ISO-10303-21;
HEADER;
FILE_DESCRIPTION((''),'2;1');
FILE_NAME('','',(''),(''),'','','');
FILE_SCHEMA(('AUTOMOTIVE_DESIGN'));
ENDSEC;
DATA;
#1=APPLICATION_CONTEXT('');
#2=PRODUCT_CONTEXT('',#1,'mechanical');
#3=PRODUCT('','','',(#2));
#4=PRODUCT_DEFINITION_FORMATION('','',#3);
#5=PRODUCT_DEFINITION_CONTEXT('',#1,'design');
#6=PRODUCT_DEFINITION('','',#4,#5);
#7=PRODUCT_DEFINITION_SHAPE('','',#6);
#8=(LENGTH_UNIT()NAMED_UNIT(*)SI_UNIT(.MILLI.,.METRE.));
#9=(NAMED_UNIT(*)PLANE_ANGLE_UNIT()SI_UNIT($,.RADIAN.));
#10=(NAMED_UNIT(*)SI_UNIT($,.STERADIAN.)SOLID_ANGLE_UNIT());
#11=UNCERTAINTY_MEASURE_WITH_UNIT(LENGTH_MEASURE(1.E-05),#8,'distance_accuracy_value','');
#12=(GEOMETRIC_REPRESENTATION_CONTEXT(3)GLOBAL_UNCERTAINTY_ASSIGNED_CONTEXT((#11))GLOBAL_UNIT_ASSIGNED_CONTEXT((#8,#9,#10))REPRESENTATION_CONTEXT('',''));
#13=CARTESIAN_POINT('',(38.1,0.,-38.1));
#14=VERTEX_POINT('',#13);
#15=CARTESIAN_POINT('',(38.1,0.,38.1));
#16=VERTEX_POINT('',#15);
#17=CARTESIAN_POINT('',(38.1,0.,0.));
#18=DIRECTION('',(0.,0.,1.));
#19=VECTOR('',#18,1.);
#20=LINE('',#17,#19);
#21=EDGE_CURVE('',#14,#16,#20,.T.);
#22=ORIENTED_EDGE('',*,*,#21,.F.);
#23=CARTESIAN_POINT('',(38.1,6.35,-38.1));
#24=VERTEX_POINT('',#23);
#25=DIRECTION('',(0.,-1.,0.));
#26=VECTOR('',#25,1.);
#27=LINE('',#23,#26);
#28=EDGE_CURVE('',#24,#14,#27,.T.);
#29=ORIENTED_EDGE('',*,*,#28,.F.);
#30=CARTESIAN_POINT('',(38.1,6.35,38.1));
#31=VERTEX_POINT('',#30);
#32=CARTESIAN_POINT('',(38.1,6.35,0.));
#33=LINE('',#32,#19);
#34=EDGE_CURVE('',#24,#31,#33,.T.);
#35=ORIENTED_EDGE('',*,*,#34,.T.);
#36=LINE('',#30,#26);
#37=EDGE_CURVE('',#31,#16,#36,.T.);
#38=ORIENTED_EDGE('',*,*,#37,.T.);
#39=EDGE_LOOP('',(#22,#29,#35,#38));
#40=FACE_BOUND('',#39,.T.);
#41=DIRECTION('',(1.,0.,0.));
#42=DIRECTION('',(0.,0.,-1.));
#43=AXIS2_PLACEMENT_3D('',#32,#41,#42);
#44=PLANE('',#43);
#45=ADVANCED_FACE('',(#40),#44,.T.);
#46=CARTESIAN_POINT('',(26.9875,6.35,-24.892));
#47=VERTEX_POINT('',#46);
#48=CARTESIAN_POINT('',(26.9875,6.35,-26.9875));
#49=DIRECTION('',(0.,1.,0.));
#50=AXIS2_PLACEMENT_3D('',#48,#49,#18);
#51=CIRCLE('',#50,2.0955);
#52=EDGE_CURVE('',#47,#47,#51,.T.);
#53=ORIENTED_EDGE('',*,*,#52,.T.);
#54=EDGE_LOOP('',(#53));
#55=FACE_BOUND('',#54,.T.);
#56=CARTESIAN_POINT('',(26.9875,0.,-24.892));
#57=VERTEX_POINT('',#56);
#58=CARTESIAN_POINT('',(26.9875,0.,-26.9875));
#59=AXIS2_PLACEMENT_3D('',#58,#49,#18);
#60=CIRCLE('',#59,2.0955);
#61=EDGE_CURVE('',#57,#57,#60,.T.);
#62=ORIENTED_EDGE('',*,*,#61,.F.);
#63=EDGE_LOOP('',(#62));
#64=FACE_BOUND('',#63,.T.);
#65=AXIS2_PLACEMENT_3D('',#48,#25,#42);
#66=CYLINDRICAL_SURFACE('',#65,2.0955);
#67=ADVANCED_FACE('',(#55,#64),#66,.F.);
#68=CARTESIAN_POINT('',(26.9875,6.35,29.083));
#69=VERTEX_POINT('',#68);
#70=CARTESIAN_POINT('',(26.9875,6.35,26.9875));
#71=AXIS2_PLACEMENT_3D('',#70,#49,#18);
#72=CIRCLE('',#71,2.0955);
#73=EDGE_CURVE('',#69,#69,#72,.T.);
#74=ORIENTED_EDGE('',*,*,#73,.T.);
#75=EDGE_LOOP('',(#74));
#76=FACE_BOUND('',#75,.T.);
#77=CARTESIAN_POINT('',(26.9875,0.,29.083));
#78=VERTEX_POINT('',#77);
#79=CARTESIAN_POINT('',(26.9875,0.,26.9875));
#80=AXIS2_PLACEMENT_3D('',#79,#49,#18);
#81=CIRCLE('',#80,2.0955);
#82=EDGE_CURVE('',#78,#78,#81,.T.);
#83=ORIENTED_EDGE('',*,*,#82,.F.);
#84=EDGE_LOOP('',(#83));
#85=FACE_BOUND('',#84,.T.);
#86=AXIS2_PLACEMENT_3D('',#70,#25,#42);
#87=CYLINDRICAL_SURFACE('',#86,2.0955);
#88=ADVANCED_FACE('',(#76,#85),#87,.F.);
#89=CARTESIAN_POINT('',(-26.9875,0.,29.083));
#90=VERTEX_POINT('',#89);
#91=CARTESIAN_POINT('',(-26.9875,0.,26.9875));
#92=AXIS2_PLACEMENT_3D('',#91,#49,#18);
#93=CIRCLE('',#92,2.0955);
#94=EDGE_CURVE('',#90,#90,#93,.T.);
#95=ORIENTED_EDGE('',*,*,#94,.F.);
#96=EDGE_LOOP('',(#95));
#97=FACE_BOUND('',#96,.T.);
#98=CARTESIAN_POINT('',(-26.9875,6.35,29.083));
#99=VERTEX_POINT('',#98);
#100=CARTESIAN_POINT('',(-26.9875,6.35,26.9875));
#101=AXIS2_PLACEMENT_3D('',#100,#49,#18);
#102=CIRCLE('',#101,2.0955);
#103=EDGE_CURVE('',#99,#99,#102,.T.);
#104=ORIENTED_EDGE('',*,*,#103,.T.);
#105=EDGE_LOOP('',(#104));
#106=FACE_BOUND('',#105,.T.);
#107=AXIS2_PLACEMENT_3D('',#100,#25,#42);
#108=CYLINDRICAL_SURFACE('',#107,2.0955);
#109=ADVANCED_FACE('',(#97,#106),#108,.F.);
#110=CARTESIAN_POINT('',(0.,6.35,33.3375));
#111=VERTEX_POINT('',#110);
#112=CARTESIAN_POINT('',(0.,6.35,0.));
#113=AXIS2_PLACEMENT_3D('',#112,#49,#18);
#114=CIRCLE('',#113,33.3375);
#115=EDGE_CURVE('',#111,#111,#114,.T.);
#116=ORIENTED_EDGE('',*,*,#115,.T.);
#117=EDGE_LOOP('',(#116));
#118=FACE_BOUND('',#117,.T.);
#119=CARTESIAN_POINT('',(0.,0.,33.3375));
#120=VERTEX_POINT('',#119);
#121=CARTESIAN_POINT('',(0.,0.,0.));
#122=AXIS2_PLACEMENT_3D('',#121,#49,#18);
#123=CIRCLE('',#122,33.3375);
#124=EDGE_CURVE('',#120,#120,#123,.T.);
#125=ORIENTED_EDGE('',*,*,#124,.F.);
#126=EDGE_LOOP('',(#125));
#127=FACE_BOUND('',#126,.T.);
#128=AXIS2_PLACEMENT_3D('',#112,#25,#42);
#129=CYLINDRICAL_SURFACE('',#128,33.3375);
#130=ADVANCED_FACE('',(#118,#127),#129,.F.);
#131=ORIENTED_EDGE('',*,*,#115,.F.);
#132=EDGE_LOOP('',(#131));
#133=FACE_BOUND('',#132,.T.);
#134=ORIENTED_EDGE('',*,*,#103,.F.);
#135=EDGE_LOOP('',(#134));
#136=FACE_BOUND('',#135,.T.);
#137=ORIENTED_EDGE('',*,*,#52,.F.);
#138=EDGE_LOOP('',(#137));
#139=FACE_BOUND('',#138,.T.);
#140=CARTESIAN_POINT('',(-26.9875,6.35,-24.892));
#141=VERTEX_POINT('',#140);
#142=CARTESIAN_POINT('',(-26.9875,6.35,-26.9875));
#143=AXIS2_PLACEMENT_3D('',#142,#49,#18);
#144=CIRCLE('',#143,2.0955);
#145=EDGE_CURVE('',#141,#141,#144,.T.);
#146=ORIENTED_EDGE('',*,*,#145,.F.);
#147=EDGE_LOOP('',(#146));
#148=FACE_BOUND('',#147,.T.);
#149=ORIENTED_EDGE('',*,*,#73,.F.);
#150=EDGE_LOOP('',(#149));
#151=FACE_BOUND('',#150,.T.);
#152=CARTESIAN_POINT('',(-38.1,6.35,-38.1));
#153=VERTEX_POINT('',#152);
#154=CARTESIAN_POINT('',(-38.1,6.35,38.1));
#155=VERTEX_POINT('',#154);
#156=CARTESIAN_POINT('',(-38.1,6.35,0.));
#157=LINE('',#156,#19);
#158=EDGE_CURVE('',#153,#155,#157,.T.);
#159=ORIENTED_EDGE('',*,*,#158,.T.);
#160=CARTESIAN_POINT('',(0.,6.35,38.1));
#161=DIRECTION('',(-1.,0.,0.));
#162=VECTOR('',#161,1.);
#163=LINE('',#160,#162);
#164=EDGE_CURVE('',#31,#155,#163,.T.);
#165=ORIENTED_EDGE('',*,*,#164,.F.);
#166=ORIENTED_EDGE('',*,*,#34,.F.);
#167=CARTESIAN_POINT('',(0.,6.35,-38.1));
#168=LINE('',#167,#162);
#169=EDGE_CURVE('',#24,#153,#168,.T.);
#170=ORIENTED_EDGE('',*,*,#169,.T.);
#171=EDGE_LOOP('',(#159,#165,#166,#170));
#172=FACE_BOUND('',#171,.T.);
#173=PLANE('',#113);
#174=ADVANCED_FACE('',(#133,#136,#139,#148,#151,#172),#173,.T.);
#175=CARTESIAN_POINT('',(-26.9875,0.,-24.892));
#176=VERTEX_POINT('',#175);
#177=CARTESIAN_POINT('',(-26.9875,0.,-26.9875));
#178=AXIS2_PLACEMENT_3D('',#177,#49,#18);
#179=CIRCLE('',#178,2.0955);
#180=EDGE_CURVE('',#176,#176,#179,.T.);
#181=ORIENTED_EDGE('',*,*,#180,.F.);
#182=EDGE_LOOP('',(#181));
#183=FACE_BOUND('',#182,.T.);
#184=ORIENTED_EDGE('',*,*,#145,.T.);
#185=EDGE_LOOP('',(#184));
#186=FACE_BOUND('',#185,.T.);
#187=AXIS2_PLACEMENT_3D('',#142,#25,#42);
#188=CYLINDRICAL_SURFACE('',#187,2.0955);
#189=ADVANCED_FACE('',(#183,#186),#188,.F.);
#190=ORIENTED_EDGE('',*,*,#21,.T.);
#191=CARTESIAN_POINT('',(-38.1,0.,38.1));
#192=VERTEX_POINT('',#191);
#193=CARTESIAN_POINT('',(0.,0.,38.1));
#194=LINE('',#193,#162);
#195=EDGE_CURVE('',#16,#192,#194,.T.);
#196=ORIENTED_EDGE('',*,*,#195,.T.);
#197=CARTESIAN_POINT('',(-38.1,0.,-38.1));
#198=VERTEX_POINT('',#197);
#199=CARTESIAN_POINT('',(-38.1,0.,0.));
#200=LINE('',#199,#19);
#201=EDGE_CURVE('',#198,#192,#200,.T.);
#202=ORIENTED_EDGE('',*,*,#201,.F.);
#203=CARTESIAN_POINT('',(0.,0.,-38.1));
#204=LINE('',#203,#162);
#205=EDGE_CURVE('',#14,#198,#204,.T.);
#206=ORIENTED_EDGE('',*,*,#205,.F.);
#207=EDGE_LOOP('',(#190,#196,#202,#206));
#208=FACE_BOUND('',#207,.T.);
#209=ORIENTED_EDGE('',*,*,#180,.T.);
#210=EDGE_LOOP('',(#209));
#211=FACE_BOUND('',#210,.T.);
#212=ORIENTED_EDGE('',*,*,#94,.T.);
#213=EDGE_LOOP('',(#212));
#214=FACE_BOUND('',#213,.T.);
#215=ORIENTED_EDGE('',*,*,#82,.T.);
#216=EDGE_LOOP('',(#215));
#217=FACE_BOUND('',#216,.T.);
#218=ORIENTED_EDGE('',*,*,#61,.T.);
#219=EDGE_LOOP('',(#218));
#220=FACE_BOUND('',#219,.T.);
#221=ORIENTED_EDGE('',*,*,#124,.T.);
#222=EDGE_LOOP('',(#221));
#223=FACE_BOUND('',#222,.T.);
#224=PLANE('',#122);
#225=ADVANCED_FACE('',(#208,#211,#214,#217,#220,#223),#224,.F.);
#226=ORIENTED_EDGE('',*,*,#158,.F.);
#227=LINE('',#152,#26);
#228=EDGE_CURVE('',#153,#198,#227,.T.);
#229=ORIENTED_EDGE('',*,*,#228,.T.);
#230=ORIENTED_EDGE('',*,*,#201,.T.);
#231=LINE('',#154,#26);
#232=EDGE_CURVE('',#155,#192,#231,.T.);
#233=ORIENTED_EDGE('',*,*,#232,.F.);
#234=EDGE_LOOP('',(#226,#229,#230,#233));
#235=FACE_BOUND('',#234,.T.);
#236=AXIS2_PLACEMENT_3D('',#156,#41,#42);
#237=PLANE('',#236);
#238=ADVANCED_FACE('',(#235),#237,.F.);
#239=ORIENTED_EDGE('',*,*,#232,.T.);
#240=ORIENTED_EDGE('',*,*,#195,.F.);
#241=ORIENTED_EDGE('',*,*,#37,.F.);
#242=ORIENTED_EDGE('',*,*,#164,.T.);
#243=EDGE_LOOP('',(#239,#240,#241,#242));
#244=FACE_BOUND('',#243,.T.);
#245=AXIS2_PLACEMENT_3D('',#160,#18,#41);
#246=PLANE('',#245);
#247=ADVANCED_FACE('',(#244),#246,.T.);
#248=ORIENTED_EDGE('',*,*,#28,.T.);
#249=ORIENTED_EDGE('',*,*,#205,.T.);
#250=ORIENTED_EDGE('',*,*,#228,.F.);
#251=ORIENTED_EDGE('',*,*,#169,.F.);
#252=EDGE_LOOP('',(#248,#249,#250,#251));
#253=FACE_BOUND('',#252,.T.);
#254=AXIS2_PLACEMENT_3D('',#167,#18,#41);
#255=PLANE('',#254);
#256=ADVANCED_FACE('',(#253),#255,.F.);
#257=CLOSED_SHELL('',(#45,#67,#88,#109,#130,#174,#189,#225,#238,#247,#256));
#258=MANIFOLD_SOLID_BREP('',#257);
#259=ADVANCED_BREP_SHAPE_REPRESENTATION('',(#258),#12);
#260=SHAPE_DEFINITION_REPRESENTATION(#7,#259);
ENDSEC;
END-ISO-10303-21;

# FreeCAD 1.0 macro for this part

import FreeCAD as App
import Part
import Sketcher

V = App.Vector
Q = App.Units.Quantity

doc = App.newDocument("Part")
body = doc.addObject("PartDesign::Body", "Body")

# Sketch on XZ plane
sketch1 = doc.addObject("Sketcher::SketchObject", "Sketch")
body.addObject(sketch1)
sketch1.AttachmentSupport = (doc.XZ_Plane, [""])
sketch1.MapMode = "FlatFace"
sketch1.addGeometry(Part.LineSegment(V(-38.1, -38.1, 0), V(-38.1, 38.1, 0)), False)
sketch1.addGeometry(Part.LineSegment(V(-38.1, 38.1, 0), V(38.1, 38.1, 0)), False)
sketch1.addGeometry(Part.LineSegment(V(38.1, 38.1, 0), V(38.1, -38.1, 0)), False)
sketch1.addGeometry(Part.LineSegment(V(38.1, -38.1, 0), V(-38.1, -38.1, 0)), False)
sketch1.addGeometry(Part.Circle(V(-27, 27, 0), V(0, 0, 1), 2.1), False)
sketch1.addGeometry(Part.Circle(V(27, 27, 0), V(0, 0, 1), 2.1), False)
sketch1.addGeometry(Part.Circle(V(-27, -27, 0), V(0, 0, 1), 2.1), False)
sketch1.addGeometry(Part.Circle(V(0, 0, 0), V(0, 0, 1), 33.3), False)
sketch1.addGeometry(Part.Circle(V(27, -27, 0), V(0, 0, 1), 2.1), False)
sketch1.addConstraint(Sketcher.Constraint("Coincident", 0, 2, 1, 1))
sketch1.addConstraint(Sketcher.Constraint("Coincident", 1, 2, 2, 1))
sketch1.addConstraint(Sketcher.Constraint("Coincident", 2, 2, 3, 1))
sketch1.addConstraint(Sketcher.Constraint("Coincident", 3, 2, 0, 1))
sketch1.addConstraint(Sketcher.Constraint("Vertical", 0))
sketch1.addConstraint(Sketcher.Constraint("Horizontal", 1))
sketch1.addConstraint(Sketcher.Constraint("Vertical", 2))
sketch1.addConstraint(Sketcher.Constraint("Horizontal", 3))
sketch1.addConstraint(Sketcher.Constraint("Coincident", 7, 3, -1, 1))
sketch1.addConstraint(Sketcher.Constraint("Equal", 4, 5))
sketch1.addConstraint(Sketcher.Constraint("Equal", 5, 6))
sketch1.addConstraint(Sketcher.Constraint("Equal", 6, 8))
sketch1.addConstraint(Sketcher.Constraint("Symmetric", 5, 3, 6, 3, -1, 1))
sketch1.addConstraint(Sketcher.Constraint("Symmetric", 4, 3, 8, 3, -1, 1))
sketch1.addConstraint(Sketcher.Constraint("Symmetric", 0, 2, 2, 2, -1, 1))
sketch1.addConstraint(Sketcher.Constraint("Symmetric", 4, 3, 5, 3, -2))
sketch1.addConstraint(Sketcher.Constraint("Equal", 3, 0))
sketch1.addConstraint(Sketcher.Constraint("DistanceX", 1, 1, 1, 2, Q("3 in")))
sketch1.addConstraint(Sketcher.Constraint("Diameter", 4, Q("0.165 in")))
sketch1.addConstraint(Sketcher.Constraint("Diameter", 7, Q("2.625 in")))
sketch1.addConstraint(Sketcher.Constraint("DistanceX", 4, 3, -1, 1, Q("1.0625 in")))
sketch1.addConstraint(Sketcher.Constraint("DistanceY", -1, 1, 4, 3, Q("1.0625 in")))
pad1 = doc.addObject("PartDesign::Pad", "Pad")
body.addObject(pad1)
pad1.Profile = sketch1
pad1.Length = Q("0.25 in")
pad1.Reversed = True

doc.recompute()
